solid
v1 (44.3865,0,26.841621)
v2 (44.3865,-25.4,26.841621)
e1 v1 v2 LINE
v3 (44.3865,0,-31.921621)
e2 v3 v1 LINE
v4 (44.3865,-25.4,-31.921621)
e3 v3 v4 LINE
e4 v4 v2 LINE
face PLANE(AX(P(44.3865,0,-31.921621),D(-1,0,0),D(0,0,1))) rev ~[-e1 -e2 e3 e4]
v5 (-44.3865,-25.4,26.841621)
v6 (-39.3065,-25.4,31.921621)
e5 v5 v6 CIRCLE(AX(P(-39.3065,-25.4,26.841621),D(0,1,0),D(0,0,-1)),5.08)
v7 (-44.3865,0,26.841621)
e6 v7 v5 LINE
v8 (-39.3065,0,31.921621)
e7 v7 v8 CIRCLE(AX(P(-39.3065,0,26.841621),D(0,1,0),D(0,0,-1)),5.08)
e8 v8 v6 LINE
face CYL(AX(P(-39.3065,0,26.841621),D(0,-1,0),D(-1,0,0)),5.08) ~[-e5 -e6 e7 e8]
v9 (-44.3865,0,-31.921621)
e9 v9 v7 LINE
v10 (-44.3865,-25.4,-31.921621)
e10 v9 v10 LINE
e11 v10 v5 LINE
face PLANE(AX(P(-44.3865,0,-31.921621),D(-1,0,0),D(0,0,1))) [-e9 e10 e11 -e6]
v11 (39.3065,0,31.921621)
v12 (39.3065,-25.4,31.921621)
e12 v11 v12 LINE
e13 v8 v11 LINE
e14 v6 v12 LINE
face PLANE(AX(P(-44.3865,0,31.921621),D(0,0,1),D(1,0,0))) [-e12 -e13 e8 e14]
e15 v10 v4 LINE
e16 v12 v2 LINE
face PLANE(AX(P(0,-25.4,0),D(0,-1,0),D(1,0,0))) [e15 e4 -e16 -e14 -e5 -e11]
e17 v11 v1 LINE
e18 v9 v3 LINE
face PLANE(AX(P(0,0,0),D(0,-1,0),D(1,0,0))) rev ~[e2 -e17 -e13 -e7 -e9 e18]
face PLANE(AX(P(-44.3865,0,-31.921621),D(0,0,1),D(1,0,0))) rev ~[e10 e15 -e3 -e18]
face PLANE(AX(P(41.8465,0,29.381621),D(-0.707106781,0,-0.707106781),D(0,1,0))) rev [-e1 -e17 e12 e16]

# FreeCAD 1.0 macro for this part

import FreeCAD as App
import Part
import Sketcher
from FreeCAD import Vector
Q = App.Units.Quantity


def edges_at(feature, points):
    """Names of the edges that pass closest to the given points."""
    edges = feature.Shape.Edges
    near = lambda p: min(range(len(edges)), key=lambda i: edges[i].distToShape(Part.Vertex(*p))[0])
    return sorted({f"Edge{near(p) + 1}" for p in points})

doc = App.newDocument("Part")
params = doc.addObject("Spreadsheet::Sheet", "Params")
for row, (alias, value) in enumerate([
    ("sketch1_width", "3.495 in"),
    ("pad1_length", "1 in"),
    ("fillet_radius", "0.2 in"),
    ("chamfer_size", "0.2 in"),
], start=1):
    params.set(f"A{row}", alias)
    params.set(f"B{row}", "=" + value)
    params.setAlias(f"B{row}", alias)

body = doc.addObject("PartDesign::Body", "Body")

# Sketch on XZ plane
sketch1 = body.newObject("Sketcher::SketchObject", "Sketch")
sketch1.AttachmentSupport = (doc.getObject("XZ_Plane"), [""])
sketch1.MapMode = "FlatFace"
sketch1.addGeometry([
    Part.LineSegment(Vector(-44.3865, 31.921621, 0), Vector(-44.3865, -31.921621, 0)),
    Part.LineSegment(Vector(-44.3865, -31.921621, 0), Vector(44.3865, -31.921621, 0)),
    Part.LineSegment(Vector(44.3865, -31.921621, 0), Vector(44.3865, 31.921621, 0)),
    Part.LineSegment(Vector(44.3865, 31.921621, 0), Vector(-44.3865, 31.921621, 0)),
], False)
sketch1.addConstraint([
    Sketcher.Constraint("Coincident", 0, 2, 1, 1),
    Sketcher.Constraint("Coincident", 1, 2, 2, 1),
    Sketcher.Constraint("Coincident", 2, 2, 3, 1),
    Sketcher.Constraint("Coincident", 3, 2, 0, 1),
    Sketcher.Constraint("Vertical", 0),
    Sketcher.Constraint("Horizontal", 1),
    Sketcher.Constraint("Vertical", 2),
    Sketcher.Constraint("Horizontal", 3),
    Sketcher.Constraint("Symmetric", 0, 2, 2, 2, -1, 1),
    Sketcher.Constraint("DistanceX", 1, 1, 1, 2, Q("3.495 in")),
    Sketcher.Constraint("DistanceY", 0, 2, 0, 1, Q("63.843242 mm")),
])
sketch1.setExpression("Constraints[9]", "Params.sketch1_width")
pad1 = body.newObject("PartDesign::Pad", "Pad")
pad1.Profile = sketch1
pad1.setExpression("Length", "Params.pad1_length")
doc.recompute()

fillet = body.newObject("PartDesign::Fillet", "Fillet")
fillet.Base = (pad1, edges_at(pad1, [(-44.386, -12.7, 31.922)]))
fillet.setExpression("Radius", "Params.fillet_radius")
doc.recompute()

chamfer = body.newObject("PartDesign::Chamfer", "Chamfer")
chamfer.Base = (fillet, edges_at(fillet, [(44.386, -12.7, 31.922)]))
chamfer.setExpression("Size", "Params.chamfer_size")

doc.recompute()
